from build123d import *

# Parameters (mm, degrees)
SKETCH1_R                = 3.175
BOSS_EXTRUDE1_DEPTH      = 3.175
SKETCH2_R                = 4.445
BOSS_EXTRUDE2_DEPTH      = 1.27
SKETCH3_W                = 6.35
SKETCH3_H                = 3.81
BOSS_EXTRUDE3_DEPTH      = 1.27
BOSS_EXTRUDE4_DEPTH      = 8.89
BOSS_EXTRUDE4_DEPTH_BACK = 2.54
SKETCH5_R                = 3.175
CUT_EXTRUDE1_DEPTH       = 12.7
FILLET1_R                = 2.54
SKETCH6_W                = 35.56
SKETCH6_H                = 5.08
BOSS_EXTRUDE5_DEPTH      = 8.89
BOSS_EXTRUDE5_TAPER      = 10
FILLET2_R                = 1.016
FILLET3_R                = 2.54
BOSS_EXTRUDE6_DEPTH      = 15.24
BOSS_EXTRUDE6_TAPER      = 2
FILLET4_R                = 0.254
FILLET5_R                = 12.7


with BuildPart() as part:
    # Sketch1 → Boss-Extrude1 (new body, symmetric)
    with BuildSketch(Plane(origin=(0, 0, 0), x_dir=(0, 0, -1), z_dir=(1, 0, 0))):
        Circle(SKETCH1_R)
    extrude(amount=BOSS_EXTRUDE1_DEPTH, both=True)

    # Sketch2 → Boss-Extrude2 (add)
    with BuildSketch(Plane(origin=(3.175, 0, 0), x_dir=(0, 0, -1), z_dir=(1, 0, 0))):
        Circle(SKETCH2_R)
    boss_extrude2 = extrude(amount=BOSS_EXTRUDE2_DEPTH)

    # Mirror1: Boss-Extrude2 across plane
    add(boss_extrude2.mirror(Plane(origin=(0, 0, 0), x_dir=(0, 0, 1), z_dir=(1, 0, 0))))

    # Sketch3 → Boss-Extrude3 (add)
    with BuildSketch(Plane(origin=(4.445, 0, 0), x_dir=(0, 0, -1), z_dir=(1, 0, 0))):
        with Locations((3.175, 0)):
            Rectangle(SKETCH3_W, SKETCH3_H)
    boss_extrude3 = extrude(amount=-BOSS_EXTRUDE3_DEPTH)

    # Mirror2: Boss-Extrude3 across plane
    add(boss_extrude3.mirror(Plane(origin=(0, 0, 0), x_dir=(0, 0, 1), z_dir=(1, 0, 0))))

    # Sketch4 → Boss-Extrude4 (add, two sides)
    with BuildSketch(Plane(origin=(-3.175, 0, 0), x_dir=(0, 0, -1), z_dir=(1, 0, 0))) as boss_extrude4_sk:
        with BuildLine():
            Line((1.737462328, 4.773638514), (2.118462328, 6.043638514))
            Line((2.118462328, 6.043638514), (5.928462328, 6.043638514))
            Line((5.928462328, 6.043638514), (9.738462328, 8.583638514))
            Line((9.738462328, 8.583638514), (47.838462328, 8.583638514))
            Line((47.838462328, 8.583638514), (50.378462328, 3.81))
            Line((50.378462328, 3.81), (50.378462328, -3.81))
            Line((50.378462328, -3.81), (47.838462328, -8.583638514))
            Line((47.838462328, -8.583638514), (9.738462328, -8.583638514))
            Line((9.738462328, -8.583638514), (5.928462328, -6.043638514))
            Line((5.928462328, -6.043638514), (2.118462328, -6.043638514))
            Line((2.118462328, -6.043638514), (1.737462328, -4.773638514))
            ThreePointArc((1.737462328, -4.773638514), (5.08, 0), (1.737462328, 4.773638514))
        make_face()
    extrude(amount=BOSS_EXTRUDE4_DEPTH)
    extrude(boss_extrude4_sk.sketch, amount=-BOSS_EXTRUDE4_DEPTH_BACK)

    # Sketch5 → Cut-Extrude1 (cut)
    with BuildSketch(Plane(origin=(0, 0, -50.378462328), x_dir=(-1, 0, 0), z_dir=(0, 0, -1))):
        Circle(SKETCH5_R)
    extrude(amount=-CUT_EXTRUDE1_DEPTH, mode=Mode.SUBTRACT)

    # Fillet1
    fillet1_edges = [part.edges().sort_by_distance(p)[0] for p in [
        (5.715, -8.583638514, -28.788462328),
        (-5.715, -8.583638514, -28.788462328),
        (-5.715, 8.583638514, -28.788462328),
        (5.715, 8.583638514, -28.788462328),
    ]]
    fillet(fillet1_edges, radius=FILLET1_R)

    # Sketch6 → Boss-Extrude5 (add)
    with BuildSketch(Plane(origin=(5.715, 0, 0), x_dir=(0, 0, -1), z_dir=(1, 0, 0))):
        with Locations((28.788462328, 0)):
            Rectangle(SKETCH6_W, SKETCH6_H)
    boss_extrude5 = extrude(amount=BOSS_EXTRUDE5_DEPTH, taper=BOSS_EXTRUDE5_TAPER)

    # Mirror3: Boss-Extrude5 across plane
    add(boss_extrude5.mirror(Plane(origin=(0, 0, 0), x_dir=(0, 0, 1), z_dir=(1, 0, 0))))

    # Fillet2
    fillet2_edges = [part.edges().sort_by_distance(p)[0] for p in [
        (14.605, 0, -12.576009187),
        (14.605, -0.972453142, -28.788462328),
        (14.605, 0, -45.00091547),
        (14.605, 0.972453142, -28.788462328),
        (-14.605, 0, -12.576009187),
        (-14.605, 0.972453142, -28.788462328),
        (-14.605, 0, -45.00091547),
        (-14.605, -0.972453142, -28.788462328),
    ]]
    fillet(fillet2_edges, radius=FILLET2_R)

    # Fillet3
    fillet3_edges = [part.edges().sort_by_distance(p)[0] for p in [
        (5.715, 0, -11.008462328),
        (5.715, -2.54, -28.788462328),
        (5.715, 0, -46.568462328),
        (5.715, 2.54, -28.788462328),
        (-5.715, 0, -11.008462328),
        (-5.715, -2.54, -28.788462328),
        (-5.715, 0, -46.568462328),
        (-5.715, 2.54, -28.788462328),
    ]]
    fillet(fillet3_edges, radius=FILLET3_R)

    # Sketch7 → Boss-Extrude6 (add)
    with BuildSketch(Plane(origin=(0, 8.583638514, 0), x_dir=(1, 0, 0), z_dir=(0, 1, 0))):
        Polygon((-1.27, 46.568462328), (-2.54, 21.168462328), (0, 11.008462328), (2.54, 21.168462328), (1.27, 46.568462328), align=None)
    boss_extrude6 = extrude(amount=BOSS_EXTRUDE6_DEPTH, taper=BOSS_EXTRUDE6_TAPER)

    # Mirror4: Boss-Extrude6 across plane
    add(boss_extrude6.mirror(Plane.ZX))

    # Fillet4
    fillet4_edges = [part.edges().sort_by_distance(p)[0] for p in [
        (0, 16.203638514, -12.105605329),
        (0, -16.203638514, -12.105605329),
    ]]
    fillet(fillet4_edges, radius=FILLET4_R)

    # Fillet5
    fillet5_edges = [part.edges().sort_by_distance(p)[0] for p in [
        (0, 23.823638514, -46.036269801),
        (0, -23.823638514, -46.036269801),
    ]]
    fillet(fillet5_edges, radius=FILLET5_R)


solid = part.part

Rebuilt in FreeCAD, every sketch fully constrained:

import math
import FreeCAD as App
import Part
import Sketcher
from FreeCAD import Vector
Q = App.Units.Quantity


def edges_at(feature, points):
    """Names of the edges that pass closest to the given points."""
    edges = feature.Shape.Edges
    near = lambda p: min(range(len(edges)), key=lambda i: edges[i].distToShape(Part.Vertex(*p))[0])
    return sorted({f"Edge{near(p) + 1}" for p in points})

doc = App.newDocument("Part")
body = doc.addObject("PartDesign::Body", "Body")

sketch1 = doc.addObject("Sketcher::SketchObject", "Sketch")
body.addObject(sketch1)
sketch1.AttachmentSupport = (doc.YZ_Plane, [""])
sketch1.MapMode = "FlatFace"
sketch1.addGeometry(Part.Circle(Vector(0, 0, 0), Vector(0, 0, 1), 3.175), False)
sketch1.addConstraint(Sketcher.Constraint("Coincident", 0, 3, -1, 1))
sketch1.addConstraint(Sketcher.Constraint("Diameter", 0, Q("0.25 in")))
pad1 = doc.addObject("PartDesign::Pad", "Pad")
body.addObject(pad1)
pad1.Profile = sketch1
pad1.Length = Q("0.25 in")
pad1.Midplane = True

sketch2 = doc.addObject("Sketcher::SketchObject", "Sketch001")
body.addObject(sketch2)
sketch2.AttachmentSupport = (doc.YZ_Plane, [""])
sketch2.MapMode = "FlatFace"
sketch2.AttachmentOffset = App.Placement(Vector(0, 0, 0.125 * 25.4), App.Rotation())
sketch2.addGeometry(Part.Circle(Vector(0, 0, 0), Vector(0, 0, 1), 4.445), False)
sketch2.addConstraint(Sketcher.Constraint("Coincident", 0, 3, -1, 1))
sketch2.addConstraint(Sketcher.Constraint("Diameter", 0, Q("0.35 in")))
pad2 = doc.addObject("PartDesign::Pad", "Pad001")
body.addObject(pad2)
pad2.Profile = sketch2
pad2.Length = Q("0.05 in")
doc.recompute()

mirrored = doc.addObject("PartDesign::Mirrored", "Mirrored")
body.addObject(mirrored)
mirrored.Originals = [pad2]
mirrored.MirrorPlane = (doc.YZ_Plane, [""])
body.Tip = mirrored

sketch3 = doc.addObject("Sketcher::SketchObject", "Sketch002")
body.addObject(sketch3)
sketch3.AttachmentSupport = (doc.YZ_Plane, [""])
sketch3.MapMode = "FlatFace"
sketch3.AttachmentOffset = App.Placement(Vector(0, 0, 0.175 * 25.4), App.Rotation())
sketch3.addGeometry(Part.LineSegment(Vector(1.905, 0, 0), Vector(-1.905, 0, 0)), False)
sketch3.addGeometry(Part.LineSegment(Vector(-1.905, 0, 0), Vector(-1.905, -6.35, 0)), False)
sketch3.addGeometry(Part.LineSegment(Vector(-1.905, -6.35, 0), Vector(1.905, -6.35, 0)), False)
sketch3.addGeometry(Part.LineSegment(Vector(1.905, -6.35, 0), Vector(1.905, 0, 0)), False)
sketch3.addConstraint(Sketcher.Constraint("Coincident", 0, 2, 1, 1))
sketch3.addConstraint(Sketcher.Constraint("Coincident", 1, 2, 2, 1))
sketch3.addConstraint(Sketcher.Constraint("Coincident", 2, 2, 3, 1))
sketch3.addConstraint(Sketcher.Constraint("Coincident", 3, 2, 0, 1))
sketch3.addConstraint(Sketcher.Constraint("Horizontal", 0))
sketch3.addConstraint(Sketcher.Constraint("Vertical", 1))
sketch3.addConstraint(Sketcher.Constraint("Horizontal", 2))
sketch3.addConstraint(Sketcher.Constraint("Vertical", 3))
sketch3.addConstraint(Sketcher.Constraint("Symmetric", 0, 2, 3, 2, -1, 1))
sketch3.addConstraint(Sketcher.Constraint("DistanceX", 0, 2, 0, 1, Q("0.15 in")))
sketch3.addConstraint(Sketcher.Constraint("DistanceY", 1, 2, 1, 1, Q("0.25 in")))
pad3 = doc.addObject("PartDesign::Pad", "Pad002")
body.addObject(pad3)
pad3.Profile = sketch3
pad3.Length = Q("0.05 in")
pad3.Reversed = True
doc.recompute()

mirrored2 = doc.addObject("PartDesign::Mirrored", "Mirrored001")
body.addObject(mirrored2)
mirrored2.Originals = [pad3]
mirrored2.MirrorPlane = (doc.YZ_Plane, [""])
body.Tip = mirrored2

sketch4 = doc.addObject("Sketcher::SketchObject", "Sketch003")
body.addObject(sketch4)
sketch4.AttachmentSupport = (doc.YZ_Plane, [""])
sketch4.MapMode = "FlatFace"
sketch4.AttachmentOffset = App.Placement(Vector(0, 0, -0.125 * 25.4), App.Rotation())
sketch4.addGeometry(Part.LineSegment(Vector(6.043639, -2.118462, 0), Vector(4.773639, -1.737462, 0)), False)
sketch4.addGeometry(Part.ArcOfCircle(Part.Circle(Vector(0, 0, 0), Vector(0, 0, 1), 5.08), math.radians(-160), math.radians(-20)), False)
sketch4.addGeometry(Part.LineSegment(Vector(-4.773639, -1.737462, 0), Vector(-6.043639, -2.118462, 0)), False)
sketch4.addGeometry(Part.LineSegment(Vector(-6.043639, -2.118462, 0), Vector(-6.043639, -5.928462, 0)), False)
sketch4.addGeometry(Part.LineSegment(Vector(-6.043639, -5.928462, 0), Vector(-8.583639, -9.738462, 0)), False)
sketch4.addGeometry(Part.LineSegment(Vector(-8.583639, -9.738462, 0), Vector(-8.583639, -47.838462, 0)), False)
sketch4.addGeometry(Part.LineSegment(Vector(-8.583639, -47.838462, 0), Vector(-3.81, -50.378462, 0)), False)
sketch4.addGeometry(Part.LineSegment(Vector(-3.81, -50.378462, 0), Vector(3.81, -50.378462, 0)), False)
sketch4.addGeometry(Part.LineSegment(Vector(3.81, -50.378462, 0), Vector(8.583639, -47.838462, 0)), False)
sketch4.addGeometry(Part.LineSegment(Vector(8.583639, -47.838462, 0), Vector(8.583639, -9.738462, 0)), False)
sketch4.addGeometry(Part.LineSegment(Vector(8.583639, -9.738462, 0), Vector(6.043639, -5.928462, 0)), False)
sketch4.addGeometry(Part.LineSegment(Vector(6.043639, -5.928462, 0), Vector(6.043639, -2.118462, 0)), False)
sketch4.addConstraint(Sketcher.Constraint("Coincident", 0, 2, 1, 2))
sketch4.addConstraint(Sketcher.Constraint("Coincident", 1, 1, 2, 1))
sketch4.addConstraint(Sketcher.Constraint("Coincident", 2, 2, 3, 1))
sketch4.addConstraint(Sketcher.Constraint("Coincident", 3, 2, 4, 1))
sketch4.addConstraint(Sketcher.Constraint("Coincident", 4, 2, 5, 1))
sketch4.addConstraint(Sketcher.Constraint("Coincident", 5, 2, 6, 1))
sketch4.addConstraint(Sketcher.Constraint("Coincident", 6, 2, 7, 1))
sketch4.addConstraint(Sketcher.Constraint("Coincident", 7, 2, 8, 1))
sketch4.addConstraint(Sketcher.Constraint("Coincident", 8, 2, 9, 1))
sketch4.addConstraint(Sketcher.Constraint("Coincident", 9, 2, 10, 1))
sketch4.addConstraint(Sketcher.Constraint("Coincident", 10, 2, 11, 1))
sketch4.addConstraint(Sketcher.Constraint("Coincident", 11, 2, 0, 1))
sketch4.addConstraint(Sketcher.Constraint("Vertical", 3))
sketch4.addConstraint(Sketcher.Constraint("Vertical", 5))
sketch4.addConstraint(Sketcher.Constraint("Horizontal", 7))
sketch4.addConstraint(Sketcher.Constraint("Vertical", 9))
sketch4.addConstraint(Sketcher.Constraint("Vertical", 11))
sketch4.addConstraint(Sketcher.Constraint("Coincident", 1, 3, -1, 1))
sketch4.addConstraint(Sketcher.Constraint("Symmetric", 5, 2, 8, 2, -2))
sketch4.addConstraint(Sketcher.Constraint("Symmetric", 3, 2, 10, 2, -2))
sketch4.addConstraint(Sketcher.Constraint("Horizontal", 0, 2, 1, 1))
sketch4.addConstraint(Sketcher.Constraint("Horizontal", 4, 2, 9, 2))
sketch4.addConstraint(Sketcher.Constraint("Horizontal", 2, 2, 11, 2))
sketch4.addConstraint(Sketcher.Constraint("Equal", 6, 8))
sketch4.addConstraint(Sketcher.Constraint("Radius", 1, Q("0.2 in")))
sketch4.addConstraint(Sketcher.Constraint("DistanceX", 7, 1, 7, 2, Q("0.3 in")))
sketch4.addConstraint(Sketcher.Constraint("DistanceY", 5, 2, 5, 1, Q("1.5 in")))
sketch4.addConstraint(Sketcher.Constraint("DistanceY", 3, 2, 3, 1, Q("0.15 in")))
sketch4.addConstraint(Sketcher.Constraint("DistanceX", 4, 2, 3, 2, Q("0.1 in")))
sketch4.addConstraint(Sketcher.Constraint("DistanceY", 4, 2, 2, 2, Q("0.3 in")))
sketch4.addConstraint(Sketcher.Constraint("DistanceY", 6, 2, 5, 2, Q("0.1 in")))
sketch4.addConstraint(Sketcher.Constraint("DistanceX", 2, 2, 1, 1, Q("0.05 in")))
sketch4.addConstraint(Sketcher.Constraint("DistanceY", 2, 2, 1, 1, Q("0.015 in")))
sketch4.addConstraint(Sketcher.Constraint("Distance", 6, 5.407331))
pad4 = doc.addObject("PartDesign::Pad", "Pad003")
body.addObject(pad4)
pad4.Profile = sketch4
pad4.Type = "TwoLengths"
pad4.Length = Q("0.35 in")
pad4.Length2 = Q("0.1 in")

sketch5 = doc.addObject("Sketcher::SketchObject", "Sketch004")
body.addObject(sketch5)
sketch5.AttachmentSupport = (doc.XY_Plane, [""])
sketch5.MapMode = "FlatFace"
sketch5.AttachmentOffset = App.Placement(Vector(0, 0, -50.378462), App.Rotation())
sketch5.addGeometry(Part.Circle(Vector(0, 0, 0), Vector(0, 0, 1), 3.175), False)
sketch5.addConstraint(Sketcher.Constraint("Coincident", 0, 3, -1, 1))
sketch5.addConstraint(Sketcher.Constraint("Diameter", 0, Q("0.25 in")))
pocket1 = doc.addObject("PartDesign::Pocket", "Pocket")
body.addObject(pocket1)
pocket1.Profile = sketch5
pocket1.Length = Q("0.5 in")
pocket1.Reversed = True
doc.recompute()

fillet = doc.addObject("PartDesign::Fillet", "Fillet")
body.addObject(fillet)
fillet.Base = (pocket1, edges_at(pocket1, [
    (5.715, -8.584, -28.788),
    (-5.715, -8.584, -28.788),
    (-5.715, 8.584, -28.788),
    (5.715, 8.584, -28.788),
]))
fillet.Radius = Q("0.1 in")

sketch6 = doc.addObject("Sketcher::SketchObject", "Sketch005")
body.addObject(sketch6)
sketch6.AttachmentSupport = (doc.YZ_Plane, [""])
sketch6.MapMode = "FlatFace"
sketch6.AttachmentOffset = App.Placement(Vector(0, 0, 0.225 * 25.4), App.Rotation())
sketch6.addGeometry(Part.LineSegment(Vector(2.54, -11.008462, 0), Vector(-2.54, -11.008462, 0)), False)
sketch6.addGeometry(Part.LineSegment(Vector(-2.54, -11.008462, 0), Vector(-2.54, -46.568462, 0)), False)
sketch6.addGeometry(Part.LineSegment(Vector(-2.54, -46.568462, 0), Vector(2.54, -46.568462, 0)), False)
sketch6.addGeometry(Part.LineSegment(Vector(2.54, -46.568462, 0), Vector(2.54, -11.008462, 0)), False)
sketch6.addConstraint(Sketcher.Constraint("Coincident", 0, 2, 1, 1))
sketch6.addConstraint(Sketcher.Constraint("Coincident", 1, 2, 2, 1))
sketch6.addConstraint(Sketcher.Constraint("Coincident", 2, 2, 3, 1))
sketch6.addConstraint(Sketcher.Constraint("Coincident", 3, 2, 0, 1))
sketch6.addConstraint(Sketcher.Constraint("Horizontal", 0))
sketch6.addConstraint(Sketcher.Constraint("Vertical", 1))
sketch6.addConstraint(Sketcher.Constraint("Horizontal", 2))
sketch6.addConstraint(Sketcher.Constraint("Vertical", 3))
sketch6.addConstraint(Sketcher.Constraint("DistanceX", 0, 2, 0, 1, Q("0.2 in")))
sketch6.addConstraint(Sketcher.Constraint("DistanceY", 1, 2, 1, 1, Q("1.4 in")))
sketch6.addConstraint(Sketcher.Constraint("DistanceX", 0, 2, -1, 1, Q("0.1 in")))
sketch6.addConstraint(Sketcher.Constraint("DistanceY", 0, 2, -1, 1, 11.008462))
pad5 = doc.addObject("PartDesign::Pad", "Pad004")
body.addObject(pad5)
pad5.Profile = sketch6
pad5.Length = Q("0.35 in")
pad5.TaperAngle = -10
doc.recompute()

mirrored3 = doc.addObject("PartDesign::Mirrored", "Mirrored002")
body.addObject(mirrored3)
mirrored3.Originals = [pad5]
mirrored3.MirrorPlane = (doc.YZ_Plane, [""])
body.Tip = mirrored3
doc.recompute()

fillet2 = doc.addObject("PartDesign::Fillet", "Fillet001")
body.addObject(fillet2)
fillet2.Base = (mirrored3, edges_at(mirrored3, [
    (14.605, 0, -12.576),
    (14.605, -0.972, -28.788),
    (14.605, 0, -45.001),
    (14.605, 0.972, -28.788),
    (-14.605, 0, -12.576),
    (-14.605, 0.972, -28.788),
    (-14.605, 0, -45.001),
    (-14.605, -0.972, -28.788),
]))
fillet2.Radius = Q("0.04 in")
doc.recompute()

fillet3 = doc.addObject("PartDesign::Fillet", "Fillet002")
body.addObject(fillet3)
fillet3.Base = (fillet2, edges_at(fillet2, [
    (5.715, 0, -11.008),
    (5.715, -2.54, -28.788),
    (5.715, 0, -46.568),
    (5.715, 2.54, -28.788),
    (-5.715, 0, -11.008),
    (-5.715, -2.54, -28.788),
    (-5.715, 0, -46.568),
    (-5.715, 2.54, -28.788),
]))
fillet3.Radius = Q("0.1 in")

sketch7 = doc.addObject("Sketcher::SketchObject", "Sketch006")
body.addObject(sketch7)
sketch7.AttachmentSupport = (doc.XZ_Plane, [""])
sketch7.MapMode = "FlatFace"
sketch7.AttachmentOffset = App.Placement(Vector(0, 0, -8.583639), App.Rotation())
sketch7.addGeometry(Part.LineSegment(Vector(-1.27, -46.568462, 0), Vector(-2.54, -21.168462, 0)), False)
sketch7.addGeometry(Part.LineSegment(Vector(-2.54, -21.168462, 0), Vector(0, -11.008462, 0)), False)
sketch7.addGeometry(Part.LineSegment(Vector(0, -11.008462, 0), Vector(2.54, -21.168462, 0)), False)
sketch7.addGeometry(Part.LineSegment(Vector(2.54, -21.168462, 0), Vector(1.27, -46.568462, 0)), False)
sketch7.addGeometry(Part.LineSegment(Vector(1.27, -46.568462, 0), Vector(-1.27, -46.568462, 0)), False)
sketch7.addConstraint(Sketcher.Constraint("Coincident", 0, 2, 1, 1))
sketch7.addConstraint(Sketcher.Constraint("Coincident", 1, 2, 2, 1))
sketch7.addConstraint(Sketcher.Constraint("Coincident", 2, 2, 3, 1))
sketch7.addConstraint(Sketcher.Constraint("Coincident", 3, 2, 4, 1))
sketch7.addConstraint(Sketcher.Constraint("Coincident", 4, 2, 0, 1))
sketch7.addConstraint(Sketcher.Constraint("Horizontal", 4))
sketch7.addConstraint(Sketcher.Constraint("Symmetric", 0, 2, 2, 2, -2))
sketch7.addConstraint(Sketcher.Constraint("PointOnObject", 1, 2, -2))
sketch7.addConstraint(Sketcher.Constraint("Equal", 0, 3))
sketch7.addConstraint(Sketcher.Constraint("DistanceX", 4, 2, 4, 1, Q("0.1 in")))
sketch7.addConstraint(Sketcher.Constraint("DistanceY", 3, 2, 2, 2, Q("1 in")))
sketch7.addConstraint(Sketcher.Constraint("DistanceX", 0, 2, -1, 1, Q("0.1 in")))
sketch7.addConstraint(Sketcher.Constraint("DistanceY", 0, 2, 1, 2, Q("0.4 in")))
sketch7.addConstraint(Sketcher.Constraint("DistanceY", 0, 2, -1, 1, 21.168462))
pad6 = doc.addObject("PartDesign::Pad", "Pad005")
body.addObject(pad6)
pad6.Profile = sketch7
pad6.Length = Q("0.6 in")
pad6.Reversed = True
pad6.TaperAngle = -2
doc.recompute()

mirrored4 = doc.addObject("PartDesign::Mirrored", "Mirrored003")
body.addObject(mirrored4)
mirrored4.Originals = [pad6]
mirrored4.MirrorPlane = (doc.XZ_Plane, [""])
body.Tip = mirrored4
doc.recompute()

fillet4 = doc.addObject("PartDesign::Fillet", "Fillet003")
body.addObject(fillet4)
fillet4.Base = (mirrored4, edges_at(mirrored4, [(0, 16.204, -12.106), (0, -16.204, -12.106)]))
fillet4.Radius = Q("0.01 in")
doc.recompute()

fillet5 = doc.addObject("PartDesign::Fillet", "Fillet004")
body.addObject(fillet5)
fillet5.Base = (fillet4, edges_at(fillet4, [(0, 23.824, -46.036), (0, -23.824, -46.036)]))
fillet5.Radius = Q("0.5 in")

doc.recompute()
